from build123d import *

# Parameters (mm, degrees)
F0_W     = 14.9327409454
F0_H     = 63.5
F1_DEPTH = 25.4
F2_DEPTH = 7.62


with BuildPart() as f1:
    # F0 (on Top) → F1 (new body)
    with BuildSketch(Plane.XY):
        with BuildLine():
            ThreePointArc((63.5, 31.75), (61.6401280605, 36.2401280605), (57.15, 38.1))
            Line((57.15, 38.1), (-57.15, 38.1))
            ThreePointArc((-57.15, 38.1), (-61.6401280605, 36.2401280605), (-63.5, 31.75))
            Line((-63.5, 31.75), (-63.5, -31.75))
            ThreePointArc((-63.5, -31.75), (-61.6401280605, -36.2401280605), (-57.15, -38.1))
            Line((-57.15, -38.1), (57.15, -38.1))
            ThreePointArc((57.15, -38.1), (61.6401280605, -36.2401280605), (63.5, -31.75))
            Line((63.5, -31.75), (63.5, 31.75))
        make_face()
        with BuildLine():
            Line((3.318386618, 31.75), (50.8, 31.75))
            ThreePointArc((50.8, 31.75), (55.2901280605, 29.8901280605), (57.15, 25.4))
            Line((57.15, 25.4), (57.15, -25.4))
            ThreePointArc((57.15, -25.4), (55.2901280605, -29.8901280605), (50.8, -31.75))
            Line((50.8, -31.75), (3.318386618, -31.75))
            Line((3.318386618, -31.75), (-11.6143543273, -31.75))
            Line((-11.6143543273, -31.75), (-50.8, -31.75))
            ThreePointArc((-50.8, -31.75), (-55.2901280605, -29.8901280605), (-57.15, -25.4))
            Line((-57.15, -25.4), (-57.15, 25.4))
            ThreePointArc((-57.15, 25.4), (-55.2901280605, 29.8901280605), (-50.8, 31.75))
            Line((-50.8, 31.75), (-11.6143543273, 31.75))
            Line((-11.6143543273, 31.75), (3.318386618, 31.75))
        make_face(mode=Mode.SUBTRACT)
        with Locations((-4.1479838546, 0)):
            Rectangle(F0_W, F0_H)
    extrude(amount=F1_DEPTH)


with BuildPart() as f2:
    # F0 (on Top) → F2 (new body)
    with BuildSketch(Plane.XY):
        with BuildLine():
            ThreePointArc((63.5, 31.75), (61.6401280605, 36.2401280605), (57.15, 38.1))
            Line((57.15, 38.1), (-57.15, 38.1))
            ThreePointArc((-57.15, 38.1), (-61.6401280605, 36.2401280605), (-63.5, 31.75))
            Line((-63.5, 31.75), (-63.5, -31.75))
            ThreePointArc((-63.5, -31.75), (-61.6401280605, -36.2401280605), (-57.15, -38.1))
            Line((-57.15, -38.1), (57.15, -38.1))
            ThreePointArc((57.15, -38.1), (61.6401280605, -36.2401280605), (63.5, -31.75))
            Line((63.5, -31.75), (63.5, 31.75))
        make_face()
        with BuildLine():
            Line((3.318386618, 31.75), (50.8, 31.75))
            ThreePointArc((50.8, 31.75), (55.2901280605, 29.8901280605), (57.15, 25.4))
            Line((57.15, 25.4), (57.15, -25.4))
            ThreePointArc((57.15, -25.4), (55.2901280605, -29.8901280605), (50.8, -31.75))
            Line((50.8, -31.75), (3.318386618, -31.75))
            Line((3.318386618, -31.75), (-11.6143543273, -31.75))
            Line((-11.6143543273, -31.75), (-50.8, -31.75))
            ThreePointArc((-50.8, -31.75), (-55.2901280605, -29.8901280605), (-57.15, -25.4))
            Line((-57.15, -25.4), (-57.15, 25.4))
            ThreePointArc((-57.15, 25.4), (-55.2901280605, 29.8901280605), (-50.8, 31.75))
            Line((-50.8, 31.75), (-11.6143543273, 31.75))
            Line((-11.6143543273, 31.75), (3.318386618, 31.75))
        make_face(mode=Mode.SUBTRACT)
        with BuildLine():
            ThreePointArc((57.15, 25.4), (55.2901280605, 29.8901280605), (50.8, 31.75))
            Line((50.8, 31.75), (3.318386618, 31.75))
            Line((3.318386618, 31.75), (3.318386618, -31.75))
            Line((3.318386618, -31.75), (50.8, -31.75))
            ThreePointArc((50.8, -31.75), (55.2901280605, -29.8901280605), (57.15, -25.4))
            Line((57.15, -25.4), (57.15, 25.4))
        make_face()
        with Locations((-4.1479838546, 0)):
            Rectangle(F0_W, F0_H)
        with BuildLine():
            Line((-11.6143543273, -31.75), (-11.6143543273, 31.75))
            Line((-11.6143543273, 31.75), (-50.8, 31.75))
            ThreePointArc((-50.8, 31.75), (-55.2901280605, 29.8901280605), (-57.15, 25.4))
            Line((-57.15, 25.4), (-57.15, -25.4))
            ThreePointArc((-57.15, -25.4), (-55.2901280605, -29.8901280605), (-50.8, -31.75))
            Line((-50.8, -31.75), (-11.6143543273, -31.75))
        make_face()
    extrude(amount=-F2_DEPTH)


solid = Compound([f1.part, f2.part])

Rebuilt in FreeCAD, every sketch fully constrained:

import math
import FreeCAD as App
import Part
import Sketcher

V = App.Vector
Q = App.Units.Quantity

doc = App.newDocument("Part")
body = doc.addObject("PartDesign::Body", "Body")

sketch1 = doc.addObject("Sketcher::SketchObject", "Sketch")
body.addObject(sketch1)
sketch1.AttachmentSupport = (doc.XY_Plane, [""])
sketch1.MapMode = "FlatFace"
sketch1.addGeometry(Part.ArcOfCircle(Part.Circle(V(57, 32, 0), V(0, 0, 1), 6), math.radians(0), math.radians(90)), False)
sketch1.addGeometry(Part.LineSegment(V(57, 38, 0), V(-57, 38, 0)), False)
sketch1.addGeometry(Part.ArcOfCircle(Part.Circle(V(-57, 32, 0), V(0, 0, 1), 6), math.radians(90), math.radians(180)), False)
sketch1.addGeometry(Part.LineSegment(V(-64, 32, 0), V(-64, -32, 0)), False)
sketch1.addGeometry(Part.ArcOfCircle(Part.Circle(V(-57, -32, 0), V(0, 0, 1), 6), math.radians(180), math.radians(270)), False)
sketch1.addGeometry(Part.LineSegment(V(-57, -38, 0), V(57, -38, 0)), False)
sketch1.addGeometry(Part.ArcOfCircle(Part.Circle(V(57, -32, 0), V(0, 0, 1), 6), math.radians(-90), math.radians(0)), False)
sketch1.addGeometry(Part.LineSegment(V(64, -32, 0), V(64, 32, 0)), False)
sketch1.addGeometry(Part.LineSegment(V(-51, 32, 0), V(-12, 32, 0)), False)
sketch1.addGeometry(Part.LineSegment(V(-12, 32, 0), V(-12, -32, 0)), False)
sketch1.addGeometry(Part.LineSegment(V(-12, -32, 0), V(-51, -32, 0)), False)
sketch1.addGeometry(Part.ArcOfCircle(Part.Circle(V(-51, -25, 0), V(0, 0, 1), 6), math.radians(180), math.radians(270)), False)
sketch1.addGeometry(Part.LineSegment(V(-57, -25, 0), V(-57, 25, 0)), False)
sketch1.addGeometry(Part.ArcOfCircle(Part.Circle(V(-51, 25, 0), V(0, 0, 1), 6), math.radians(90), math.radians(180)), False)
sketch1.addGeometry(Part.LineSegment(V(3, 32, 0), V(51, 32, 0)), False)
sketch1.addGeometry(Part.ArcOfCircle(Part.Circle(V(51, 25, 0), V(0, 0, 1), 6), math.radians(0), math.radians(90)), False)
sketch1.addGeometry(Part.LineSegment(V(57, 25, 0), V(57, -25, 0)), False)
sketch1.addGeometry(Part.ArcOfCircle(Part.Circle(V(51, -25, 0), V(0, 0, 1), 6), math.radians(-90), math.radians(0)), False)
sketch1.addGeometry(Part.LineSegment(V(51, -32, 0), V(3, -32, 0)), False)
sketch1.addGeometry(Part.LineSegment(V(3, -32, 0), V(3, 32, 0)), False)
sketch1.addConstraint(Sketcher.Constraint("Tangent", 0, 2, 1, 1))
sketch1.addConstraint(Sketcher.Constraint("Tangent", 1, 2, 2, 1))
sketch1.addConstraint(Sketcher.Constraint("Tangent", 2, 2, 3, 1))
sketch1.addConstraint(Sketcher.Constraint("Tangent", 3, 2, 4, 1))
sketch1.addConstraint(Sketcher.Constraint("Tangent", 4, 2, 5, 1))
sketch1.addConstraint(Sketcher.Constraint("Tangent", 5, 2, 6, 1))
sketch1.addConstraint(Sketcher.Constraint("Tangent", 6, 2, 7, 1))
sketch1.addConstraint(Sketcher.Constraint("Tangent", 7, 2, 0, 1))
sketch1.addConstraint(Sketcher.Constraint("Coincident", 8, 2, 9, 1))
sketch1.addConstraint(Sketcher.Constraint("Coincident", 9, 2, 10, 1))
sketch1.addConstraint(Sketcher.Constraint("Tangent", 10, 2, 11, 2))
sketch1.addConstraint(Sketcher.Constraint("Tangent", 11, 1, 12, 1))
sketch1.addConstraint(Sketcher.Constraint("Tangent", 12, 2, 13, 2))
sketch1.addConstraint(Sketcher.Constraint("Tangent", 13, 1, 8, 1))
sketch1.addConstraint(Sketcher.Constraint("Tangent", 14, 2, 15, 2))
sketch1.addConstraint(Sketcher.Constraint("Tangent", 15, 1, 16, 1))
sketch1.addConstraint(Sketcher.Constraint("Tangent", 16, 2, 17, 2))
sketch1.addConstraint(Sketcher.Constraint("Tangent", 17, 1, 18, 1))
sketch1.addConstraint(Sketcher.Constraint("Coincident", 18, 2, 19, 1))
sketch1.addConstraint(Sketcher.Constraint("Coincident", 19, 2, 14, 1))
sketch1.addConstraint(Sketcher.Constraint("Horizontal", 1))
sketch1.addConstraint(Sketcher.Constraint("Vertical", 3))
sketch1.addConstraint(Sketcher.Constraint("Horizontal", 5))
sketch1.addConstraint(Sketcher.Constraint("Vertical", 7))
sketch1.addConstraint(Sketcher.Constraint("Horizontal", 8))
sketch1.addConstraint(Sketcher.Constraint("Vertical", 9))
sketch1.addConstraint(Sketcher.Constraint("Horizontal", 10))
sketch1.addConstraint(Sketcher.Constraint("Vertical", 12))
sketch1.addConstraint(Sketcher.Constraint("Horizontal", 14))
sketch1.addConstraint(Sketcher.Constraint("Vertical", 16))
sketch1.addConstraint(Sketcher.Constraint("Horizontal", 18))
sketch1.addConstraint(Sketcher.Constraint("Vertical", 19))
sketch1.addConstraint(Sketcher.Constraint("Equal", 0, 2))
sketch1.addConstraint(Sketcher.Constraint("Equal", 2, 4))
sketch1.addConstraint(Sketcher.Constraint("Equal", 4, 6))
sketch1.addConstraint(Sketcher.Constraint("Equal", 6, 11))
sketch1.addConstraint(Sketcher.Constraint("Equal", 11, 13))
sketch1.addConstraint(Sketcher.Constraint("Equal", 13, 15))
sketch1.addConstraint(Sketcher.Constraint("Equal", 15, 17))
sketch1.addConstraint(Sketcher.Constraint("Symmetric", 0, 3, 4, 3, -1, 1))
sketch1.addConstraint(Sketcher.Constraint("Symmetric", 11, 3, 15, 3, -1, 1))
sketch1.addConstraint(Sketcher.Constraint("Horizontal", 13, 3, 15, 3))
sketch1.addConstraint(Sketcher.Constraint("Horizontal", 11, 3, 17, 3))
sketch1.addConstraint(Sketcher.Constraint("Horizontal", 7, 2, 8, 2))
sketch1.addConstraint(Sketcher.Constraint("Vertical", 4, 2, 11, 1))
sketch1.addConstraint(Sketcher.Constraint("DistanceY", 12, 1, 12, 2, Q("2 in")))
sketch1.addConstraint(Sketcher.Constraint("Radius", 0, Q("0.25 in")))
sketch1.addConstraint(Sketcher.Constraint("DistanceX", 1, 2, 1, 1, Q("4.5 in")))
sketch1.addConstraint(Sketcher.Constraint("DistanceX", 8, 1, 8, 2, 39.185646))
sketch1.addConstraint(Sketcher.Constraint("DistanceX", 14, 1, 14, 2, 47.481613))
pad1 = doc.addObject("PartDesign::Pad", "Pad")
body.addObject(pad1)
pad1.Profile = sketch1
pad1.Length = Q("1 in")
body2 = doc.addObject("PartDesign::Body", "Body001")

sketch2 = doc.addObject("Sketcher::SketchObject", "Sketch001")
body2.addObject(sketch2)
sketch2.AttachmentSupport = (doc.getObject("XY_Plane001"), [""])
sketch2.MapMode = "FlatFace"
sketch2.addGeometry(Part.ArcOfCircle(Part.Circle(V(57, 32, 0), V(0, 0, 1), 6), math.radians(0), math.radians(90)), False)
sketch2.addGeometry(Part.LineSegment(V(57, 38, 0), V(-57, 38, 0)), False)
sketch2.addGeometry(Part.ArcOfCircle(Part.Circle(V(-57, 32, 0), V(0, 0, 1), 6), math.radians(90), math.radians(180)), False)
sketch2.addGeometry(Part.LineSegment(V(-64, 32, 0), V(-64, -32, 0)), False)
sketch2.addGeometry(Part.ArcOfCircle(Part.Circle(V(-57, -32, 0), V(0, 0, 1), 6), math.radians(180), math.radians(270)), False)
sketch2.addGeometry(Part.LineSegment(V(-57, -38, 0), V(57, -38, 0)), False)
sketch2.addGeometry(Part.ArcOfCircle(Part.Circle(V(57, -32, 0), V(0, 0, 1), 6), math.radians(-90), math.radians(0)), False)
sketch2.addGeometry(Part.LineSegment(V(64, -32, 0), V(64, 32, 0)), False)
sketch2.addConstraint(Sketcher.Constraint("Tangent", 0, 2, 1, 1))
sketch2.addConstraint(Sketcher.Constraint("Tangent", 1, 2, 2, 1))
sketch2.addConstraint(Sketcher.Constraint("Tangent", 2, 2, 3, 1))
sketch2.addConstraint(Sketcher.Constraint("Tangent", 3, 2, 4, 1))
sketch2.addConstraint(Sketcher.Constraint("Tangent", 4, 2, 5, 1))
sketch2.addConstraint(Sketcher.Constraint("Tangent", 5, 2, 6, 1))
sketch2.addConstraint(Sketcher.Constraint("Tangent", 6, 2, 7, 1))
sketch2.addConstraint(Sketcher.Constraint("Tangent", 7, 2, 0, 1))
sketch2.addConstraint(Sketcher.Constraint("Horizontal", 1))
sketch2.addConstraint(Sketcher.Constraint("Vertical", 3))
sketch2.addConstraint(Sketcher.Constraint("Horizontal", 5))
sketch2.addConstraint(Sketcher.Constraint("Vertical", 7))
sketch2.addConstraint(Sketcher.Constraint("Equal", 0, 2))
sketch2.addConstraint(Sketcher.Constraint("Equal", 2, 4))
sketch2.addConstraint(Sketcher.Constraint("Equal", 4, 6))
sketch2.addConstraint(Sketcher.Constraint("Symmetric", 0, 3, 4, 3, -1, 1))
sketch2.addConstraint(Sketcher.Constraint("Radius", 0, Q("0.25 in")))
sketch2.addConstraint(Sketcher.Constraint("DistanceX", 1, 2, 1, 1, Q("4.5 in")))
sketch2.addConstraint(Sketcher.Constraint("DistanceY", 3, 2, 3, 1, Q("2.5 in")))
pad2 = doc.addObject("PartDesign::Pad", "Pad001")
body2.addObject(pad2)
pad2.Profile = sketch2
pad2.Length = Q("0.3 in")
pad2.Reversed = True

doc.recompute()
